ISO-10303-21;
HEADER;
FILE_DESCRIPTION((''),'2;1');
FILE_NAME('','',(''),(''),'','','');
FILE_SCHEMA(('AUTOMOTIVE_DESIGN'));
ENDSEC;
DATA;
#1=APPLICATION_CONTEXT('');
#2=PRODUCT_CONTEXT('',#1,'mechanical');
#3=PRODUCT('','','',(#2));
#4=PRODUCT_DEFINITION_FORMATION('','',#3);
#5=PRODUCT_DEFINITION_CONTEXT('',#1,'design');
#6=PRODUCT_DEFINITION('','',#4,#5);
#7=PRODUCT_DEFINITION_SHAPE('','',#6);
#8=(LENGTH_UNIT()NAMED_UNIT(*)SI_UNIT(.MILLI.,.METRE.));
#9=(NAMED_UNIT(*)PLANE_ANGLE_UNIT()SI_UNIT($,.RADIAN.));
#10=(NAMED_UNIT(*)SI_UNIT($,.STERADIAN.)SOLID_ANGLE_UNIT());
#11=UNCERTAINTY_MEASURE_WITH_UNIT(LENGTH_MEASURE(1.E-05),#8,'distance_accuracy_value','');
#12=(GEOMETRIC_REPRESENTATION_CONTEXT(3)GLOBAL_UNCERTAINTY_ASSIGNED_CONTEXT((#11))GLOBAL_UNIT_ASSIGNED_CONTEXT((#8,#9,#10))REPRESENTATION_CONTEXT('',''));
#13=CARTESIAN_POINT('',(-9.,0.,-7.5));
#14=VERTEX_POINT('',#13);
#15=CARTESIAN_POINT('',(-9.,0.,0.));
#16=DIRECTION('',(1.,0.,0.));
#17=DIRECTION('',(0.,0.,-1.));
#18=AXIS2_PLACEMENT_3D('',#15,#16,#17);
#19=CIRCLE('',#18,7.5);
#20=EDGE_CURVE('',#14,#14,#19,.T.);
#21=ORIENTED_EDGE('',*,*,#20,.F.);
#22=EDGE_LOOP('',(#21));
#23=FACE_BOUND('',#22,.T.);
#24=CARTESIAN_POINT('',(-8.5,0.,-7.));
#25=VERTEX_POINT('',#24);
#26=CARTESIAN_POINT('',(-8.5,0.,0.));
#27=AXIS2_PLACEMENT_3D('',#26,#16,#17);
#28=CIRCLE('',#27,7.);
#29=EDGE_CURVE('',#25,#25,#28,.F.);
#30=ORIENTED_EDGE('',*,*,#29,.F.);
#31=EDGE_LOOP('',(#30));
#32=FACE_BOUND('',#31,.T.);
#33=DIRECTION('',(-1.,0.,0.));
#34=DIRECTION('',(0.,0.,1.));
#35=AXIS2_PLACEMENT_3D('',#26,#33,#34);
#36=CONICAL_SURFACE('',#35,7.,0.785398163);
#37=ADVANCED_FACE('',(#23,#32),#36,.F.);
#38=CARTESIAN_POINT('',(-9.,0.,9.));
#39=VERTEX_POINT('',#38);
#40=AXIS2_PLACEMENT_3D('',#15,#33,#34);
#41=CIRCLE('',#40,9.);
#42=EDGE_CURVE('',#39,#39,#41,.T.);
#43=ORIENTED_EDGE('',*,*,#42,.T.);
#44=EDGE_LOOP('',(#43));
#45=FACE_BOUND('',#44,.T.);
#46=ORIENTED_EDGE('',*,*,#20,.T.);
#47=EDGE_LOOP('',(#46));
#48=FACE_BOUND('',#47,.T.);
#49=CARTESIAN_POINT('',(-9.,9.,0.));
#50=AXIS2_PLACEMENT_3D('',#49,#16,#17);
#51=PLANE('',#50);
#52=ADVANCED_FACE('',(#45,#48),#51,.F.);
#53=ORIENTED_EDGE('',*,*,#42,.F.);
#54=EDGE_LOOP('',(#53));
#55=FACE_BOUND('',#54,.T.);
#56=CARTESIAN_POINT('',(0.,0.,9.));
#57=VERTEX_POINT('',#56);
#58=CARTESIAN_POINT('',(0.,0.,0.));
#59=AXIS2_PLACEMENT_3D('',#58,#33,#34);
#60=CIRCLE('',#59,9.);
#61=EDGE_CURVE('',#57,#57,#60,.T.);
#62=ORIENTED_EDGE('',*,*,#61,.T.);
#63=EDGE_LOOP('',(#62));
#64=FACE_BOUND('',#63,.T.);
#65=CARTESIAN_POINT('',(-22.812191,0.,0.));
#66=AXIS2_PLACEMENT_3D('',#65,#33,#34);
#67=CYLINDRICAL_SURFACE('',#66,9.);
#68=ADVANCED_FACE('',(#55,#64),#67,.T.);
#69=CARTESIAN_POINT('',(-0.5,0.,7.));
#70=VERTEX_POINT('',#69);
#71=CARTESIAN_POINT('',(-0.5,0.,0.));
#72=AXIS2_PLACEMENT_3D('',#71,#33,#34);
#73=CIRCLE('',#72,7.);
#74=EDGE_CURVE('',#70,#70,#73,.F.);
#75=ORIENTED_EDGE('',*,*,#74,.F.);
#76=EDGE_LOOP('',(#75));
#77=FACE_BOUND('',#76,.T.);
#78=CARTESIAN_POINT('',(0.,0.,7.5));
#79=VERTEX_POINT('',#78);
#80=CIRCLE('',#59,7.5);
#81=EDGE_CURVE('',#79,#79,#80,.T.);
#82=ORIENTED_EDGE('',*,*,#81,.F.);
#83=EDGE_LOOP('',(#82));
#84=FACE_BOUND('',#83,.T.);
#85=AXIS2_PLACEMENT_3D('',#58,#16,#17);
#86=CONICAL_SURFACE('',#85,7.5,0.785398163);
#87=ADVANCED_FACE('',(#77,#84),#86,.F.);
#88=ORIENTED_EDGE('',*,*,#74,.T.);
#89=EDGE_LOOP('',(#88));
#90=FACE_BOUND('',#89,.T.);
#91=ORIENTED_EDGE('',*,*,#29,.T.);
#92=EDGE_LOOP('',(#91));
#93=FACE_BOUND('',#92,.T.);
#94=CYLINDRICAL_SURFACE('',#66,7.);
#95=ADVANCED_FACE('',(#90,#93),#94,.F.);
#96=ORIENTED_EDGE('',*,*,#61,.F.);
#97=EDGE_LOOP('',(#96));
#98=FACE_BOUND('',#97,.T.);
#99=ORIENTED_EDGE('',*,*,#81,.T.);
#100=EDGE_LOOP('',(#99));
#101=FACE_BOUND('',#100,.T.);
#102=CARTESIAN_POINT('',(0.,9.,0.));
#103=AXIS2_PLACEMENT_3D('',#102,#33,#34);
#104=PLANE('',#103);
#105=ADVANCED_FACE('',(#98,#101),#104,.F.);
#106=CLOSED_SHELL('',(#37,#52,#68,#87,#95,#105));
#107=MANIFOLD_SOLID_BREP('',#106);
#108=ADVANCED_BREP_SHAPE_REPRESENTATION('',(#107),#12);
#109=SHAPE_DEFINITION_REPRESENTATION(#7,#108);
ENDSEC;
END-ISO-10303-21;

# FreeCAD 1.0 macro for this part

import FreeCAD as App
import Part
import Sketcher
from FreeCAD import Vector
Q = App.Units.Quantity


def edges_at(feature, points):
    """Names of the edges that pass closest to the given points."""
    edges = feature.Shape.Edges
    near = lambda p: min(range(len(edges)), key=lambda i: edges[i].distToShape(Part.Vertex(*p))[0])
    return sorted({f"Edge{near(p) + 1}" for p in points})

doc = App.newDocument("Part")
body = doc.addObject("PartDesign::Body", "Body")

# Sketch on XY plane
sketch1 = doc.addObject("Sketcher::SketchObject", "Sketch")
body.addObject(sketch1)
sketch1.AttachmentSupport = (doc.XY_Plane, [""])
sketch1.MapMode = "FlatFace"
sketch1.addGeometry([
    Part.LineSegment(Vector(-9, 9, 0), Vector(-9, 7, 0)),
    Part.LineSegment(Vector(-9, 7, 0), Vector(0, 7, 0)),
    Part.LineSegment(Vector(0, 7, 0), Vector(0, 9, 0)),
    Part.LineSegment(Vector(0, 9, 0), Vector(-9, 9, 0)),
], False)
sketch1.addConstraint([
    Sketcher.Constraint("Coincident", 0, 2, 1, 1),
    Sketcher.Constraint("Coincident", 1, 2, 2, 1),
    Sketcher.Constraint("Coincident", 2, 2, 3, 1),
    Sketcher.Constraint("Coincident", 3, 2, 0, 1),
    Sketcher.Constraint("Vertical", 0),
    Sketcher.Constraint("Horizontal", 1),
    Sketcher.Constraint("Vertical", 2),
    Sketcher.Constraint("Horizontal", 3),
    Sketcher.Constraint("PointOnObject", 1, 2, -2),
    Sketcher.Constraint("DistanceX", 1, 1, 1, 2, Q("9 mm")),
    Sketcher.Constraint("DistanceY", 0, 2, 0, 1, Q("2 mm")),
    Sketcher.Constraint("DistanceY", -1, 1, 0, 2, Q("7 mm")),
])
revolution = doc.addObject("PartDesign::Revolution", "Revolution")
body.addObject(revolution)
revolution.Profile = sketch1
revolution.ReferenceAxis = (sketch1, ["H_Axis"])
revolution.Angle = 360
doc.recompute()

chamfer = doc.addObject("PartDesign::Chamfer", "Chamfer")
body.addObject(chamfer)
chamfer.Base = (revolution, edges_at(revolution, [(0, 0, -7), (-9, 0, -7)]))
chamfer.Size = 0.5

doc.recompute()
